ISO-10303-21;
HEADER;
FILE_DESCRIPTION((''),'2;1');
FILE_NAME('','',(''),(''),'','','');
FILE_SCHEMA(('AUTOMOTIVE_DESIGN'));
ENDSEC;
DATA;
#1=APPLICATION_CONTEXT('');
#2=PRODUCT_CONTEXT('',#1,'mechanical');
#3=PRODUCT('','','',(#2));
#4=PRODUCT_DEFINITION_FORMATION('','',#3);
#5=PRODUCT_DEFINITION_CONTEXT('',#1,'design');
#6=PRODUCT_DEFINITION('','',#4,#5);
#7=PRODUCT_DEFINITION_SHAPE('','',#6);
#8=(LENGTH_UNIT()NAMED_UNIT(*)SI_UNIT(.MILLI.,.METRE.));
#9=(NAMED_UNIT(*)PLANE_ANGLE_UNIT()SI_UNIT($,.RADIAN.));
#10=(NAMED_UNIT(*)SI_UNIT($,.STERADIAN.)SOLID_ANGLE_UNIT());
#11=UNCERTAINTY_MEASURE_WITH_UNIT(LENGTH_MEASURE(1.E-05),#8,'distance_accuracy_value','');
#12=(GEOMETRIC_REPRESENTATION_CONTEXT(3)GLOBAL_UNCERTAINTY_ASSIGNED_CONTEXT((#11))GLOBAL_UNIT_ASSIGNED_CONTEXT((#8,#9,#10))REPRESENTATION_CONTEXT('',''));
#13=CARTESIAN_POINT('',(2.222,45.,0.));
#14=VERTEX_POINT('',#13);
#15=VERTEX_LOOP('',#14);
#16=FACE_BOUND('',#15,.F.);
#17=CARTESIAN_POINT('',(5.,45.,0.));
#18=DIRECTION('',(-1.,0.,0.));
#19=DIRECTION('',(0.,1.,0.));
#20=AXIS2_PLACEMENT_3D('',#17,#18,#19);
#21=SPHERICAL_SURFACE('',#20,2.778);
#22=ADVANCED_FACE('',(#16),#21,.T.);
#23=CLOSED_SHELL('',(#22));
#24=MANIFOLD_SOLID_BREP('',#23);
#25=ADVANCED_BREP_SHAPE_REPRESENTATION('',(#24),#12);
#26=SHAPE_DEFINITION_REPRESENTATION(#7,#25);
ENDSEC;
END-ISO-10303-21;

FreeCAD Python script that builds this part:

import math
import FreeCAD as App
import Part
import Sketcher
from FreeCAD import Vector

doc = App.newDocument("Part")
body = doc.addObject("PartDesign::Body", "Body")

sketch1 = body.newObject("Sketcher::SketchObject", "Sketch")
sketch1.AttachmentSupport = (doc.getObject("XY_Plane"), [""])
sketch1.MapMode = "FlatFace"
sketch1.addGeometry(Part.LineSegment(Vector(2.2, 45, 0), Vector(7.8, 45, 0)), False)
sketch1.addGeometry(Part.ArcOfCircle(Part.Circle(Vector(5, 45, 0), Vector(0, 0, 1), 2.8), math.radians(0), math.radians(180)), False)
sketch1.addGeometry(Part.LineSegment(Vector(2.2, 45, 0), Vector(7.8, 45, 0)), True)
sketch1.addConstraint(Sketcher.Constraint("Coincident", 0, 1, 1, 2))
sketch1.addConstraint(Sketcher.Constraint("Coincident", 1, 1, 0, 2))
sketch1.addConstraint(Sketcher.Constraint("Horizontal", 0))
sketch1.addConstraint(Sketcher.Constraint("Horizontal", 2))
sketch1.addConstraint(Sketcher.Constraint("Coincident", 2, 1, 0, 1))
sketch1.addConstraint(Sketcher.Constraint("Horizontal", 1, 3, 0, 1))
sketch1.addConstraint(Sketcher.Constraint("Equal", 0, 2))
sketch1.addConstraint(Sketcher.Constraint("DistanceX", -1, 1, 1, 3, 5.0))
sketch1.addConstraint(Sketcher.Constraint("DistanceY", -1, 1, 1, 3, 45.0))
sketch1.addConstraint(Sketcher.Constraint("Radius", 1, 2.778))
revolution = body.newObject("PartDesign::Revolution", "Revolution")
revolution.Profile = sketch1
revolution.ReferenceAxis = (sketch1, ["Axis0"])
revolution.Angle = 360

doc.recompute()
